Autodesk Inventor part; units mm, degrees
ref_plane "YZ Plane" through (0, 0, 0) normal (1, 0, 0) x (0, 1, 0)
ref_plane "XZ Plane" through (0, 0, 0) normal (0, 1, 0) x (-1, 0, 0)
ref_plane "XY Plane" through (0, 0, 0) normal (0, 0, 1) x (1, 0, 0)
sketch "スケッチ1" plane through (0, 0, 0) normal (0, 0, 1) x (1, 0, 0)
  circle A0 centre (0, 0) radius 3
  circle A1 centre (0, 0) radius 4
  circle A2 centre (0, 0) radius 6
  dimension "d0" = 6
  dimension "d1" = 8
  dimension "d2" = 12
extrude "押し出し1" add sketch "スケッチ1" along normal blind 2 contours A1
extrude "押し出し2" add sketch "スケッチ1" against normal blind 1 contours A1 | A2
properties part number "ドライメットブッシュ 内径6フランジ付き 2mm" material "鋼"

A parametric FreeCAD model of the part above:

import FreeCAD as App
import Part
import Sketcher

V = App.Vector

doc = App.newDocument("Part")
body = doc.addObject("PartDesign::Body", "Body")

sketch1 = doc.addObject("Sketcher::SketchObject", "Sketch")
body.addObject(sketch1)
sketch1.AttachmentSupport = (doc.XY_Plane, [""])
sketch1.MapMode = "FlatFace"
sketch1.addGeometry(Part.Circle(V(0, 0, 0), V(0, 0, 1), 4), False)
sketch1.addGeometry(Part.Circle(V(0, 0, 0), V(0, 0, 1), 3), False)
sketch1.addConstraint(Sketcher.Constraint("Coincident", 0, 3, -1, 1))
sketch1.addConstraint(Sketcher.Constraint("Coincident", 1, 3, -1, 1))
sketch1.addConstraint(Sketcher.Constraint("Diameter", 0, 8.0))
sketch1.addConstraint(Sketcher.Constraint("Diameter", 1, 6.0))
pad1 = doc.addObject("PartDesign::Pad", "Pad")
body.addObject(pad1)
pad1.Profile = sketch1
pad1.Length = 2

sketch2 = doc.addObject("Sketcher::SketchObject", "Sketch001")
body.addObject(sketch2)
sketch2.AttachmentSupport = (doc.XY_Plane, [""])
sketch2.MapMode = "FlatFace"
sketch2.addGeometry(Part.Circle(V(0, 0, 0), V(0, 0, 1), 6), False)
sketch2.addGeometry(Part.Circle(V(0, 0, 0), V(0, 0, 1), 3), False)
sketch2.addConstraint(Sketcher.Constraint("Coincident", 0, 3, -1, 1))
sketch2.addConstraint(Sketcher.Constraint("Coincident", 1, 3, -1, 1))
sketch2.addConstraint(Sketcher.Constraint("Diameter", 0, 12.0))
sketch2.addConstraint(Sketcher.Constraint("Diameter", 1, 6.0))
pad2 = doc.addObject("PartDesign::Pad", "Pad001")
body.addObject(pad2)
pad2.Profile = sketch2
pad2.Length = 1
pad2.Reversed = True

doc.recompute()
